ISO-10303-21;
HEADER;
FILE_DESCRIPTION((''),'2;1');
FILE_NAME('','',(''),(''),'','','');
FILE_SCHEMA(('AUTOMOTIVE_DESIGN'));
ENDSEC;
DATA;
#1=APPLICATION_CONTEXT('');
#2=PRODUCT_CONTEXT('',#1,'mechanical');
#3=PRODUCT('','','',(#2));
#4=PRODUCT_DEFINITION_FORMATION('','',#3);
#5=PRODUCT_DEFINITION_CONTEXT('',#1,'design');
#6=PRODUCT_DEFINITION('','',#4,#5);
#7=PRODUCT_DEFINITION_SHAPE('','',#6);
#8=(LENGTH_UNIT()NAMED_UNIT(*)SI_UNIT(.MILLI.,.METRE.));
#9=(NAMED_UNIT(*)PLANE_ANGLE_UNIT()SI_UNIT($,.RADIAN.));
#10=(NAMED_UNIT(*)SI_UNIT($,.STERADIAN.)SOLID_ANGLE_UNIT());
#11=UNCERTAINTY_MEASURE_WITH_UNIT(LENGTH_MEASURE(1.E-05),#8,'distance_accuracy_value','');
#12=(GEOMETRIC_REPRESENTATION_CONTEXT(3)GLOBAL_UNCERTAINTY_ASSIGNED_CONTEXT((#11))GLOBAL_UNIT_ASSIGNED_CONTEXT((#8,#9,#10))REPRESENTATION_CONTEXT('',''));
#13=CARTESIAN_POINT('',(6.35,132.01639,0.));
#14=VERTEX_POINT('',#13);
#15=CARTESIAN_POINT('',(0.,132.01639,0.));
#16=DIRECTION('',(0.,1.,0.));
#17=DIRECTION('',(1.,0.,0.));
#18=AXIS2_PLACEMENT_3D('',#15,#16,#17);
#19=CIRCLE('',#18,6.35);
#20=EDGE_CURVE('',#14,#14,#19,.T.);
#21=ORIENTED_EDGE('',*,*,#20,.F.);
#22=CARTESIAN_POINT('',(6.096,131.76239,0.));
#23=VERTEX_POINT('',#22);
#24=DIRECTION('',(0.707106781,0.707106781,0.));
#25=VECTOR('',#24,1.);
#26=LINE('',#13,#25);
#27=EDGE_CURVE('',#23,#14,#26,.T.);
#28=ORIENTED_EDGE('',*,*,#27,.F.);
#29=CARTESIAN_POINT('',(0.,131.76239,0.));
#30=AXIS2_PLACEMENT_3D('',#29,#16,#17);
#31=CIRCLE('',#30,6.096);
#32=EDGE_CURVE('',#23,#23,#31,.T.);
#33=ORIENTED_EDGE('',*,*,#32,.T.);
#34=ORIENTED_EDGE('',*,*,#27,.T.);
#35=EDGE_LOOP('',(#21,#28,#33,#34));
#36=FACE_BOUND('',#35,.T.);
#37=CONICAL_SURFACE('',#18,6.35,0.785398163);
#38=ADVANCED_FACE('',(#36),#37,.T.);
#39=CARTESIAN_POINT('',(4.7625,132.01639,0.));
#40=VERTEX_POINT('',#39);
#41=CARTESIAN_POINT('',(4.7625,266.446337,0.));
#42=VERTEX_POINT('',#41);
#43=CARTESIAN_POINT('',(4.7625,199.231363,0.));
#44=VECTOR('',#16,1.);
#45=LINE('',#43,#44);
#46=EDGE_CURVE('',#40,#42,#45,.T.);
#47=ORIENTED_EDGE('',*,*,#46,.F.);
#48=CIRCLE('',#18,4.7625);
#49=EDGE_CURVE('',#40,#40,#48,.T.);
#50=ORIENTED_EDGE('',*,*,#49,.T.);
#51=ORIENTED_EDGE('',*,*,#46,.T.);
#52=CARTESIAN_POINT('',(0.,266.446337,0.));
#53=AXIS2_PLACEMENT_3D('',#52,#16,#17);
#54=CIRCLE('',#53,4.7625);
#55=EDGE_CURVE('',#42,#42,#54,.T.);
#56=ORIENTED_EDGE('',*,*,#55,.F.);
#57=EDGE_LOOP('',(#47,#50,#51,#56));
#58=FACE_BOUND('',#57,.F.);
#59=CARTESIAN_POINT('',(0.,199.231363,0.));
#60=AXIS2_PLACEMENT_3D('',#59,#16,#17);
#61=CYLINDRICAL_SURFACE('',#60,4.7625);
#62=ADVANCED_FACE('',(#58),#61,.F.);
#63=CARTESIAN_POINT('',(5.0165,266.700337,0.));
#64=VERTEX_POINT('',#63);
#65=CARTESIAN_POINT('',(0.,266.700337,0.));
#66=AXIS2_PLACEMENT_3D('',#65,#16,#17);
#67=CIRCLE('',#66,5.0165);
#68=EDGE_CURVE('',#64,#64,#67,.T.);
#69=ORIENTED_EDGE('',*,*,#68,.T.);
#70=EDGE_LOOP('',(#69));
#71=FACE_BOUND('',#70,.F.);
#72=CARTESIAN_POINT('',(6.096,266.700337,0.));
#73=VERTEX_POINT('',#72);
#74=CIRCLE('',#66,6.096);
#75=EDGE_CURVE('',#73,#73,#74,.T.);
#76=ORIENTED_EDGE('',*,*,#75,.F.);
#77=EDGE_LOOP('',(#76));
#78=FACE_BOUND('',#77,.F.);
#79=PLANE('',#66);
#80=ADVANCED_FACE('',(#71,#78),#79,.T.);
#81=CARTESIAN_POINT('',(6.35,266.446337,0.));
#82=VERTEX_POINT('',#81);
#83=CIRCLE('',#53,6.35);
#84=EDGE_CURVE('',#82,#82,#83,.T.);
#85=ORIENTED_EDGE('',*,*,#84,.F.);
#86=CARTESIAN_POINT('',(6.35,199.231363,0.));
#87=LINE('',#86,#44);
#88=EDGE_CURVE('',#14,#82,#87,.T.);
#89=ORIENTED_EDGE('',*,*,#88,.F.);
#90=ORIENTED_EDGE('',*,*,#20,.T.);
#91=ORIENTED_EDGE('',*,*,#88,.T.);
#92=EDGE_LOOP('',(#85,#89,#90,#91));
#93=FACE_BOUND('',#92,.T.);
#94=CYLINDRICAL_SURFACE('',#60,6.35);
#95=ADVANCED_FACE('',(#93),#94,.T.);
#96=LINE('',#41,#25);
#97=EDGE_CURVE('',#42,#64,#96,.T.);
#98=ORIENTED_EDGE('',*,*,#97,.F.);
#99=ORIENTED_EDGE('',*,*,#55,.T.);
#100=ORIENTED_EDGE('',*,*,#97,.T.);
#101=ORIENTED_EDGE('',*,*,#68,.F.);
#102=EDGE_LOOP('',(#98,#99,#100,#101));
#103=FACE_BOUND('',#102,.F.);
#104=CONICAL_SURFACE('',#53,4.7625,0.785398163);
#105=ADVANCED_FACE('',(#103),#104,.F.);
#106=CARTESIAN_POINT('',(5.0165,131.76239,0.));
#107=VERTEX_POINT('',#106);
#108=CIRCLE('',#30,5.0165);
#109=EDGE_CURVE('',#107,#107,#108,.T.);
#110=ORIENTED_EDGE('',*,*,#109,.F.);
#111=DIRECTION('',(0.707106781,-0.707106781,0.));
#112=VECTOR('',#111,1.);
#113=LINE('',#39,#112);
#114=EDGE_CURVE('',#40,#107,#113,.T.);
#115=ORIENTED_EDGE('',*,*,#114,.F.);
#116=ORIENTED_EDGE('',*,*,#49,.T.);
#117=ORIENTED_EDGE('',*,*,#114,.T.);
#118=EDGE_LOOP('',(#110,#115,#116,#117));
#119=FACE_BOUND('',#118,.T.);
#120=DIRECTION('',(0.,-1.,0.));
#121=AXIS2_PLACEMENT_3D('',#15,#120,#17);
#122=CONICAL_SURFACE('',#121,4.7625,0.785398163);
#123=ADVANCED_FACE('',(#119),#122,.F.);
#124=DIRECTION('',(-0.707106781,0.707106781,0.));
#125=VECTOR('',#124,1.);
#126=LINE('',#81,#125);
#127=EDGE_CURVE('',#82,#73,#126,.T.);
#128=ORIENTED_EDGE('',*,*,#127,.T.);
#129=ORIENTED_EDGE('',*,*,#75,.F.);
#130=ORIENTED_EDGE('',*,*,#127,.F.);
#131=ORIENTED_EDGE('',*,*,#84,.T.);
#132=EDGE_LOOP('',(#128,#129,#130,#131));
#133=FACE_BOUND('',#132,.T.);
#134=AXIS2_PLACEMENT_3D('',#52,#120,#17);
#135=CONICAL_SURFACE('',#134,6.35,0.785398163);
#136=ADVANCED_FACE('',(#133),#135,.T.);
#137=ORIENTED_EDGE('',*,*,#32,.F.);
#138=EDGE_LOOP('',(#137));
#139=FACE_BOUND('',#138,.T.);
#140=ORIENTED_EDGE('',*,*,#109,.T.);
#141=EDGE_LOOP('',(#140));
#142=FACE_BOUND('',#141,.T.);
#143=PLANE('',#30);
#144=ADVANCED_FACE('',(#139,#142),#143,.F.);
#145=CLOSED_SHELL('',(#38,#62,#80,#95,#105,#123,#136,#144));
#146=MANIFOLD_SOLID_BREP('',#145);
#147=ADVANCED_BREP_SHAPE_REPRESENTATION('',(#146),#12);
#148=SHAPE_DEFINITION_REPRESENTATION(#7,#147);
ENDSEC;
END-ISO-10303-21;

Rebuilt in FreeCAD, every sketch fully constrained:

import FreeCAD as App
import Part
import Sketcher
Q = App.Units.Quantity


def edges_at(feature, points):
    """Names of the edges that pass closest to the given points."""
    edges = feature.Shape.Edges
    near = lambda p: min(range(len(edges)), key=lambda i: edges[i].distToShape(Part.Vertex(*p))[0])
    return sorted({f"Edge{near(p) + 1}" for p in points})

doc = App.newDocument("Part")
params = doc.addObject("Spreadsheet::Sheet", "Params")
for row, (alias, value) in enumerate([
    ("sketch1_width", "0.0625 in"),
    ("revolution_angle", "360 deg"),
    ("chamfer_size", "0.01 in"),
], start=1):
    params.set(f"A{row}", alias)
    params.set(f"B{row}", "=" + value)
    params.setAlias(f"B{row}", alias)

body = doc.addObject("PartDesign::Body", "Body")

sketch1 = body.newObject("Sketcher::SketchObject", "Sketch")
sketch1.AttachmentSupport = (doc.getObject("XY_Plane"), [""])
sketch1.MapMode = "FlatFace"
sketch1.addGeometry(Part.LineSegment(App.Vector(4.7625, 266.700337, 0), App.Vector(4.7625, 131.76239, 0)), False)
sketch1.addGeometry(Part.LineSegment(App.Vector(4.7625, 131.76239, 0), App.Vector(6.35, 131.76239, 0)), False)
sketch1.addGeometry(Part.LineSegment(App.Vector(6.35, 131.76239, 0), App.Vector(6.35, 266.700337, 0)), False)
sketch1.addGeometry(Part.LineSegment(App.Vector(6.35, 266.700337, 0), App.Vector(4.7625, 266.700337, 0)), False)
sketch1.addConstraint(Sketcher.Constraint("Coincident", 0, 2, 1, 1))
sketch1.addConstraint(Sketcher.Constraint("Coincident", 1, 2, 2, 1))
sketch1.addConstraint(Sketcher.Constraint("Coincident", 2, 2, 3, 1))
sketch1.addConstraint(Sketcher.Constraint("Coincident", 3, 2, 0, 1))
sketch1.addConstraint(Sketcher.Constraint("Vertical", 0))
sketch1.addConstraint(Sketcher.Constraint("Horizontal", 1))
sketch1.addConstraint(Sketcher.Constraint("Vertical", 2))
sketch1.addConstraint(Sketcher.Constraint("Horizontal", 3))
sketch1.addConstraint(Sketcher.Constraint("DistanceX", 1, 1, 1, 2, Q("0.0625 in")))
sketch1.addConstraint(Sketcher.Constraint("DistanceX", -1, 1, 1, 2, Q("0.25 in")))
sketch1.addConstraint(Sketcher.Constraint("DistanceY", 0, 2, 0, 1, Q("134.937947 mm")))
sketch1.addConstraint(Sketcher.Constraint("DistanceY", -1, 1, 0, 2, Q("131.76239 mm")))
sketch1.setExpression("Constraints[8]", "Params.sketch1_width")
revolution = body.newObject("PartDesign::Revolution", "Revolution")
revolution.Profile = sketch1
revolution.ReferenceAxis = (sketch1, ["V_Axis"])
revolution.setExpression("Angle", "Params.revolution_angle")
doc.recompute()

chamfer = body.newObject("PartDesign::Chamfer", "Chamfer")
chamfer.Base = (revolution, edges_at(revolution, [
    (-6.35, 131.762, 0),
    (-6.35, 266.7, 0),
    (-4.763, 266.7, 0),
    (-4.763, 131.762, 0),
]))
chamfer.setExpression("Size", "Params.chamfer_size")

doc.recompute()
